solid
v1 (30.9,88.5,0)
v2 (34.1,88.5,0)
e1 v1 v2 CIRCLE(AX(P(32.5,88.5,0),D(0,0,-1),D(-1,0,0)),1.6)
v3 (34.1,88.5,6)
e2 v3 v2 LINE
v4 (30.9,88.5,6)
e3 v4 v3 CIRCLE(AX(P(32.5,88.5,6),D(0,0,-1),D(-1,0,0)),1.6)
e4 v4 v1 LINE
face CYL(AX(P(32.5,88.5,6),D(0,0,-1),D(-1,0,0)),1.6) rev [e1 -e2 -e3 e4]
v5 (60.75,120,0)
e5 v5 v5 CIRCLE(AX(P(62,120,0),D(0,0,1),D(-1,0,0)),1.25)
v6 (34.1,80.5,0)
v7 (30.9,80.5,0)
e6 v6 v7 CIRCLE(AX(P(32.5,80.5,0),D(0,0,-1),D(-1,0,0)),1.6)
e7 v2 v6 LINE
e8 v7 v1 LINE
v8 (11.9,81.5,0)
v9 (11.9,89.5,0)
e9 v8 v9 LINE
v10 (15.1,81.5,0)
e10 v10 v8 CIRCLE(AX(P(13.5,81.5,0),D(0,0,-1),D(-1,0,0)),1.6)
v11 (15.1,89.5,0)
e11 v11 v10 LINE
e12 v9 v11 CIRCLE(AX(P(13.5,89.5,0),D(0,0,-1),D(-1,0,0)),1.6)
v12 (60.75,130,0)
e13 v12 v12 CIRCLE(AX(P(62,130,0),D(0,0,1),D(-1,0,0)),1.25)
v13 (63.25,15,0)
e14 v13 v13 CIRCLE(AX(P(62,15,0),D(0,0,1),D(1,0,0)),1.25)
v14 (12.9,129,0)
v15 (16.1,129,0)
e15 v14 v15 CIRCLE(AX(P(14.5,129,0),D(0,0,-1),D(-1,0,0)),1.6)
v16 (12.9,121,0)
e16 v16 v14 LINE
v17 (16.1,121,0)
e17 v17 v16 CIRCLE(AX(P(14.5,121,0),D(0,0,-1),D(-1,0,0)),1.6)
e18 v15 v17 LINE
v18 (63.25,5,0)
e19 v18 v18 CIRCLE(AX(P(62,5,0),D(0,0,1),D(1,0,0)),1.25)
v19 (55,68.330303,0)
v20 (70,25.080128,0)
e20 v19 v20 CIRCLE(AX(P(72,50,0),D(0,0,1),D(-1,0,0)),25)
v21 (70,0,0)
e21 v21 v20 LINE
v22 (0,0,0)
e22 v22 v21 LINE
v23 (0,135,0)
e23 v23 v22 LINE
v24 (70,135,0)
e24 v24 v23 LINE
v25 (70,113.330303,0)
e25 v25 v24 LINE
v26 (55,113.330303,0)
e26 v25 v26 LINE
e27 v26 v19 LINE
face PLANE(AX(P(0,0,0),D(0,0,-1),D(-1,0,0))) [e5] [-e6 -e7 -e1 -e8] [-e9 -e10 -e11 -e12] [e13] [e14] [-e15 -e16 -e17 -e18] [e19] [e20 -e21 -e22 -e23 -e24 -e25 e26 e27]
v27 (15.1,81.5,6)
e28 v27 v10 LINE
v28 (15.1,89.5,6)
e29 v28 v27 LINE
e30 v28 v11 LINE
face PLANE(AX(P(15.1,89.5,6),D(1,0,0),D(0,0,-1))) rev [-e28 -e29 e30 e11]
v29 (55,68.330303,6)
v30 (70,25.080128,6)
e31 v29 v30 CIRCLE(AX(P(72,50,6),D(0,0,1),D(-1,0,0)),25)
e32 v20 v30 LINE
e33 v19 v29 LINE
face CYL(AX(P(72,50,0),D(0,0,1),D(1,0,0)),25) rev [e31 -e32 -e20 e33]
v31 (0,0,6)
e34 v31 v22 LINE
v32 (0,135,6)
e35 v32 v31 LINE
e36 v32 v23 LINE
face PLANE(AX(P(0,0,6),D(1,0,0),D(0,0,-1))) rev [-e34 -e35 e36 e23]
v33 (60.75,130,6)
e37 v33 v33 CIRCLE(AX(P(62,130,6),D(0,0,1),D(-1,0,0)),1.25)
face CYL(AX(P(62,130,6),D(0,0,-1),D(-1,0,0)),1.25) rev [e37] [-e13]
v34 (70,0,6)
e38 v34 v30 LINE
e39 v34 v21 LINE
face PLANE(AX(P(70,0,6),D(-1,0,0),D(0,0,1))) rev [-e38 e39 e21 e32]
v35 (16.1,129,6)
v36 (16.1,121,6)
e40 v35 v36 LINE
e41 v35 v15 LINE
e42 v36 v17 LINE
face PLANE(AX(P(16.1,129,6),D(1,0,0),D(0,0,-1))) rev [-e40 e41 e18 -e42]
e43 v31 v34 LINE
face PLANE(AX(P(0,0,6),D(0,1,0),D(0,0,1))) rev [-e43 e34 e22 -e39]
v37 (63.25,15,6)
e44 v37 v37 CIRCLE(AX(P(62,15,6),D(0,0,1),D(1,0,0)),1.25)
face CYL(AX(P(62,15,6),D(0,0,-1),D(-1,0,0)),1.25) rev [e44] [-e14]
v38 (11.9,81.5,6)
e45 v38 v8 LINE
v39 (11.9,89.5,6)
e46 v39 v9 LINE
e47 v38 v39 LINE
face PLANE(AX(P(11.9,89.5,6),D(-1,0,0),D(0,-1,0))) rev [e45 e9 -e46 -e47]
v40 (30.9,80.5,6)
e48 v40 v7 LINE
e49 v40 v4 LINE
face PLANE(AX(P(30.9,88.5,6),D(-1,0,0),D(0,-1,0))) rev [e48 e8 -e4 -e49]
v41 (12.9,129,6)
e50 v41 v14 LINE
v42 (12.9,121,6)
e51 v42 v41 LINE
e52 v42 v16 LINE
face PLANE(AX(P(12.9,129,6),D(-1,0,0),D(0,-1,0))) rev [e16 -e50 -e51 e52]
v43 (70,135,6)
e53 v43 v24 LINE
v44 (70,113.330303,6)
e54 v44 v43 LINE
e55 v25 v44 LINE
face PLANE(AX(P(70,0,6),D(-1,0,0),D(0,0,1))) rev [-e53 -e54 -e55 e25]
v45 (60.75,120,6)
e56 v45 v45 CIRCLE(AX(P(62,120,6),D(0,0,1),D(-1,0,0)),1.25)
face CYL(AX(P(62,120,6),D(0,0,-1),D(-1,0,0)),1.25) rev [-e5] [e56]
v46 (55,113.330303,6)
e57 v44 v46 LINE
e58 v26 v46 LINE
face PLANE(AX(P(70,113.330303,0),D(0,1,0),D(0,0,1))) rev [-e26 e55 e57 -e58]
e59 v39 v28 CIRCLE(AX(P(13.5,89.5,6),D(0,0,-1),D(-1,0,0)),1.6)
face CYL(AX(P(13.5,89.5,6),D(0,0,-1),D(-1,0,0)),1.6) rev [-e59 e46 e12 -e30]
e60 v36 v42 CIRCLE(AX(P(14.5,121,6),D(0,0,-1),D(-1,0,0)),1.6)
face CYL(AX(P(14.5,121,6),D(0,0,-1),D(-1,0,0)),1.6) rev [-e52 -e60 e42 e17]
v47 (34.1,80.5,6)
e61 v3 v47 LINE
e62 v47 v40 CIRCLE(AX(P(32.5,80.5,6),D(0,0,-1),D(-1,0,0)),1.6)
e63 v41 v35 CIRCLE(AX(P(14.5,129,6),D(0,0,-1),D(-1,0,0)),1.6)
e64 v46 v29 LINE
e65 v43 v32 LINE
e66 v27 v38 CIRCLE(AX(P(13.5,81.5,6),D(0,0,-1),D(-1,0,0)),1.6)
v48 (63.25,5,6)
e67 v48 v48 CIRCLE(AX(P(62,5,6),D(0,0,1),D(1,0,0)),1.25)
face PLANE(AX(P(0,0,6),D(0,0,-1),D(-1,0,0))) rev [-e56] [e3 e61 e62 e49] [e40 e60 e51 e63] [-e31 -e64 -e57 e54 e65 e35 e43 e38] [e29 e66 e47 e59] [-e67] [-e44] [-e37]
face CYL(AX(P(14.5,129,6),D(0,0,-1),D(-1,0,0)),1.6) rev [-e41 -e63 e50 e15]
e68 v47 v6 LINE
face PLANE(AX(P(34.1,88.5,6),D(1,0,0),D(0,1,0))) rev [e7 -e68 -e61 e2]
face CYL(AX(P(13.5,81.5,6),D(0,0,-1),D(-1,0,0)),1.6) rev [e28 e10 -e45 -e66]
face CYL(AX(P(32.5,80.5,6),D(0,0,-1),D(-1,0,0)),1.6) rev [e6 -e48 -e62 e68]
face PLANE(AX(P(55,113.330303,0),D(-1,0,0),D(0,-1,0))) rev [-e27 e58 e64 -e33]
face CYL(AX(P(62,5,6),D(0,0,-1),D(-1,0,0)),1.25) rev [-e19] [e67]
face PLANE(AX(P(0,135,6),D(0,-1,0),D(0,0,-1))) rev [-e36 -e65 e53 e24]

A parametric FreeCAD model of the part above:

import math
import FreeCAD as App
import Part
import Sketcher

V = App.Vector


def add_polygon(sketch, points):
    """Adds a closed chain of lines whose ends are joined by coincident constraints."""
    first, n = sketch.GeometryCount, len(points)
    for a, b in zip(points, points[1:] + points[:1]):
        sketch.addGeometry(Part.LineSegment(App.Vector(*a, 0), App.Vector(*b, 0)), False)
    for i in range(n):
        sketch.addConstraint(Sketcher.Constraint("Coincident", first + i, 2, first + (i + 1) % n, 1))

doc = App.newDocument("Part")
body = doc.addObject("PartDesign::Body", "Body")

# Sketch on XY plane
sketch1 = body.newObject("Sketcher::SketchObject", "Sketch")
sketch1.AttachmentSupport = (doc.getObject("XY_Plane"), [""])
sketch1.MapMode = "FlatFace"
add_polygon(sketch1, [(0, 135), (0, 0), (70, 0), (70, 135)])  # lines 0-3
sketch1.addGeometry(Part.Circle(V(62, 5, 0), V(0, 0, 1), 1.2), False)  # 4
sketch1.addGeometry(Part.Circle(V(62, 15, 0), V(0, 0, 1), 1.2), False)  # 5
sketch1.addGeometry(Part.Circle(V(62, 120, 0), V(0, 0, 1), 1.2), False)  # 6
sketch1.addGeometry(Part.Circle(V(62, 130, 0), V(0, 0, 1), 1.2), False)  # 7
sketch1.addConstraint(Sketcher.Constraint("Vertical", 0))
sketch1.addConstraint(Sketcher.Constraint("Horizontal", 1))
sketch1.addConstraint(Sketcher.Constraint("Vertical", 2))
sketch1.addConstraint(Sketcher.Constraint("Horizontal", 3))
sketch1.addConstraint(Sketcher.Constraint("Coincident", 0, 2, -1, 1))
sketch1.addConstraint(Sketcher.Constraint("Equal", 4, 5))
sketch1.addConstraint(Sketcher.Constraint("Equal", 5, 6))
sketch1.addConstraint(Sketcher.Constraint("Equal", 6, 7))
sketch1.addConstraint(Sketcher.Constraint("Vertical", 4, 3, 5, 3))
sketch1.addConstraint(Sketcher.Constraint("Vertical", 5, 3, 6, 3))
sketch1.addConstraint(Sketcher.Constraint("Vertical", 6, 3, 7, 3))
sketch1.addConstraint(Sketcher.Constraint("Diameter", 4, 2.5))
sketch1.addConstraint(Sketcher.Constraint("DistanceX", 1, 1, 1, 2, 70.0))
sketch1.addConstraint(Sketcher.Constraint("DistanceY", 0, 2, 0, 1, 135.0))
sketch1.addConstraint(Sketcher.Constraint("DistanceX", -1, 1, 4, 3, 62.0))
sketch1.addConstraint(Sketcher.Constraint("DistanceY", -1, 1, 4, 3, 5.0))
sketch1.addConstraint(Sketcher.Constraint("DistanceY", -1, 1, 5, 3, 15.0))
sketch1.addConstraint(Sketcher.Constraint("DistanceY", -1, 1, 6, 3, 120.0))
sketch1.addConstraint(Sketcher.Constraint("DistanceY", -1, 1, 7, 3, 130.0))
pad1 = body.newObject("PartDesign::Pad", "Pad")
pad1.Profile = sketch1
pad1.Length = 6

# Sketch on XY plane
sketch2 = body.newObject("Sketcher::SketchObject", "Sketch001")
sketch2.AttachmentSupport = (doc.getObject("XY_Plane"), [""])
sketch2.MapMode = "FlatFace"
sketch2.AttachmentOffset = App.Placement(V(0, 0, 6), App.Rotation())
sketch2.addGeometry(Part.LineSegment(V(70, 25, 0), V(70, 113, 0)), False)
sketch2.addGeometry(Part.LineSegment(V(70, 113, 0), V(55, 113, 0)), False)
sketch2.addGeometry(Part.LineSegment(V(55, 113, 0), V(55, 68, 0)), False)
sketch2.addGeometry(Part.ArcOfCircle(Part.Circle(V(72, 50, 0), V(0, 0, 1), 25), math.radians(133), math.radians(265)), False)
sketch2.addConstraint(Sketcher.Constraint("Coincident", 0, 2, 1, 1))
sketch2.addConstraint(Sketcher.Constraint("Coincident", 1, 2, 2, 1))
sketch2.addConstraint(Sketcher.Constraint("Coincident", 2, 2, 3, 1))
sketch2.addConstraint(Sketcher.Constraint("Coincident", 3, 2, 0, 1))
sketch2.addConstraint(Sketcher.Constraint("Vertical", 0))
sketch2.addConstraint(Sketcher.Constraint("Horizontal", 1))
sketch2.addConstraint(Sketcher.Constraint("Vertical", 2))
sketch2.addConstraint(Sketcher.Constraint("Radius", 3, 25.0))
sketch2.addConstraint(Sketcher.Constraint("DistanceX", 1, 2, 1, 1, 15.0))
sketch2.addConstraint(Sketcher.Constraint("DistanceY", 2, 2, 2, 1, 45.0))
sketch2.addConstraint(Sketcher.Constraint("DistanceX", -1, 1, 3, 3, 72.0))
sketch2.addConstraint(Sketcher.Constraint("DistanceY", -1, 1, 3, 3, 50.0))
sketch2.addConstraint(Sketcher.Constraint("DistanceX", -1, 1, 0, 2, 70.0))
pocket1 = body.newObject("PartDesign::Pocket", "Pocket")
pocket1.Profile = sketch2
pocket1.Type = "ThroughAll"

# Sketch on XY plane
sketch3 = body.newObject("Sketcher::SketchObject", "Sketch002")
sketch3.AttachmentSupport = (doc.getObject("XY_Plane"), [""])
sketch3.MapMode = "FlatFace"
sketch3.addGeometry(Part.LineSegment(V(12.9, 121, 0), V(12.9, 129, 0)), False)
sketch3.addGeometry(Part.ArcOfCircle(Part.Circle(V(14.5, 129, 0), V(0, 0, 1), 1.6), math.radians(0), math.radians(180)), False)
sketch3.addGeometry(Part.LineSegment(V(16.1, 129, 0), V(16.1, 121, 0)), False)
sketch3.addGeometry(Part.ArcOfCircle(Part.Circle(V(14.5, 121, 0), V(0, 0, 1), 1.6), math.radians(180), math.radians(360)), False)
sketch3.addGeometry(Part.LineSegment(V(11.9, 81.5, 0), V(11.9, 89.5, 0)), False)
sketch3.addGeometry(Part.ArcOfCircle(Part.Circle(V(13.5, 89.5, 0), V(0, 0, 1), 1.6), math.radians(0), math.radians(180)), False)
sketch3.addGeometry(Part.LineSegment(V(15.1, 89.5, 0), V(15.1, 81.5, 0)), False)
sketch3.addGeometry(Part.ArcOfCircle(Part.Circle(V(13.5, 81.5, 0), V(0, 0, 1), 1.6), math.radians(180), math.radians(360)), False)
sketch3.addGeometry(Part.LineSegment(V(30.9, 80.5, 0), V(30.9, 88.5, 0)), False)
sketch3.addGeometry(Part.ArcOfCircle(Part.Circle(V(32.5, 88.5, 0), V(0, 0, 1), 1.6), math.radians(0), math.radians(180)), False)
sketch3.addGeometry(Part.LineSegment(V(34.1, 88.5, 0), V(34.1, 80.5, 0)), False)
sketch3.addGeometry(Part.ArcOfCircle(Part.Circle(V(32.5, 80.5, 0), V(0, 0, 1), 1.6), math.radians(180), math.radians(360)), False)
sketch3.addConstraint(Sketcher.Constraint("Tangent", 0, 2, 1, 2))
sketch3.addConstraint(Sketcher.Constraint("Tangent", 1, 1, 2, 1))
sketch3.addConstraint(Sketcher.Constraint("Tangent", 2, 2, 3, 2))
sketch3.addConstraint(Sketcher.Constraint("Tangent", 3, 1, 0, 1))
sketch3.addConstraint(Sketcher.Constraint("Tangent", 4, 2, 5, 2))
sketch3.addConstraint(Sketcher.Constraint("Tangent", 5, 1, 6, 1))
sketch3.addConstraint(Sketcher.Constraint("Tangent", 6, 2, 7, 2))
sketch3.addConstraint(Sketcher.Constraint("Tangent", 7, 1, 4, 1))
sketch3.addConstraint(Sketcher.Constraint("Tangent", 8, 2, 9, 2))
sketch3.addConstraint(Sketcher.Constraint("Tangent", 9, 1, 10, 1))
sketch3.addConstraint(Sketcher.Constraint("Tangent", 10, 2, 11, 2))
sketch3.addConstraint(Sketcher.Constraint("Tangent", 11, 1, 8, 1))
sketch3.addConstraint(Sketcher.Constraint("Vertical", 0))
sketch3.addConstraint(Sketcher.Constraint("Vertical", 2))
sketch3.addConstraint(Sketcher.Constraint("Vertical", 4))
sketch3.addConstraint(Sketcher.Constraint("Vertical", 6))
sketch3.addConstraint(Sketcher.Constraint("Vertical", 8))
sketch3.addConstraint(Sketcher.Constraint("Vertical", 10))
sketch3.addConstraint(Sketcher.Constraint("Equal", 3, 5))
sketch3.addConstraint(Sketcher.Constraint("Equal", 7, 9))
sketch3.addConstraint(Sketcher.Constraint("Equal", 2, 4))
sketch3.addConstraint(Sketcher.Constraint("Equal", 6, 8))
sketch3.addConstraint(Sketcher.Constraint("Radius", 1, 1.6))
sketch3.addConstraint(Sketcher.Constraint("DistanceY", 0, 1, 0, 2, 8.0))
sketch3.addConstraint(Sketcher.Constraint("DistanceY", -1, 1, 1, 3, 129.0))
sketch3.addConstraint(Sketcher.Constraint("DistanceX", 5, 3, 3, 3, 1.0))
sketch3.addConstraint(Sketcher.Constraint("DistanceX", 5, 3, 9, 3, 19.0))
sketch3.addConstraint(Sketcher.Constraint("DistanceY", 9, 3, 5, 3, 1.0))
sketch3.addConstraint(Sketcher.Constraint("DistanceX", -1, 1, 1, 3, 14.5))
sketch3.addConstraint(Sketcher.Constraint("DistanceY", -1, 1, 5, 3, 89.5))
pocket2 = body.newObject("PartDesign::Pocket", "Pocket001")
pocket2.Profile = sketch3
pocket2.Type = "ThroughAll"
pocket2.Reversed = True

doc.recompute()
